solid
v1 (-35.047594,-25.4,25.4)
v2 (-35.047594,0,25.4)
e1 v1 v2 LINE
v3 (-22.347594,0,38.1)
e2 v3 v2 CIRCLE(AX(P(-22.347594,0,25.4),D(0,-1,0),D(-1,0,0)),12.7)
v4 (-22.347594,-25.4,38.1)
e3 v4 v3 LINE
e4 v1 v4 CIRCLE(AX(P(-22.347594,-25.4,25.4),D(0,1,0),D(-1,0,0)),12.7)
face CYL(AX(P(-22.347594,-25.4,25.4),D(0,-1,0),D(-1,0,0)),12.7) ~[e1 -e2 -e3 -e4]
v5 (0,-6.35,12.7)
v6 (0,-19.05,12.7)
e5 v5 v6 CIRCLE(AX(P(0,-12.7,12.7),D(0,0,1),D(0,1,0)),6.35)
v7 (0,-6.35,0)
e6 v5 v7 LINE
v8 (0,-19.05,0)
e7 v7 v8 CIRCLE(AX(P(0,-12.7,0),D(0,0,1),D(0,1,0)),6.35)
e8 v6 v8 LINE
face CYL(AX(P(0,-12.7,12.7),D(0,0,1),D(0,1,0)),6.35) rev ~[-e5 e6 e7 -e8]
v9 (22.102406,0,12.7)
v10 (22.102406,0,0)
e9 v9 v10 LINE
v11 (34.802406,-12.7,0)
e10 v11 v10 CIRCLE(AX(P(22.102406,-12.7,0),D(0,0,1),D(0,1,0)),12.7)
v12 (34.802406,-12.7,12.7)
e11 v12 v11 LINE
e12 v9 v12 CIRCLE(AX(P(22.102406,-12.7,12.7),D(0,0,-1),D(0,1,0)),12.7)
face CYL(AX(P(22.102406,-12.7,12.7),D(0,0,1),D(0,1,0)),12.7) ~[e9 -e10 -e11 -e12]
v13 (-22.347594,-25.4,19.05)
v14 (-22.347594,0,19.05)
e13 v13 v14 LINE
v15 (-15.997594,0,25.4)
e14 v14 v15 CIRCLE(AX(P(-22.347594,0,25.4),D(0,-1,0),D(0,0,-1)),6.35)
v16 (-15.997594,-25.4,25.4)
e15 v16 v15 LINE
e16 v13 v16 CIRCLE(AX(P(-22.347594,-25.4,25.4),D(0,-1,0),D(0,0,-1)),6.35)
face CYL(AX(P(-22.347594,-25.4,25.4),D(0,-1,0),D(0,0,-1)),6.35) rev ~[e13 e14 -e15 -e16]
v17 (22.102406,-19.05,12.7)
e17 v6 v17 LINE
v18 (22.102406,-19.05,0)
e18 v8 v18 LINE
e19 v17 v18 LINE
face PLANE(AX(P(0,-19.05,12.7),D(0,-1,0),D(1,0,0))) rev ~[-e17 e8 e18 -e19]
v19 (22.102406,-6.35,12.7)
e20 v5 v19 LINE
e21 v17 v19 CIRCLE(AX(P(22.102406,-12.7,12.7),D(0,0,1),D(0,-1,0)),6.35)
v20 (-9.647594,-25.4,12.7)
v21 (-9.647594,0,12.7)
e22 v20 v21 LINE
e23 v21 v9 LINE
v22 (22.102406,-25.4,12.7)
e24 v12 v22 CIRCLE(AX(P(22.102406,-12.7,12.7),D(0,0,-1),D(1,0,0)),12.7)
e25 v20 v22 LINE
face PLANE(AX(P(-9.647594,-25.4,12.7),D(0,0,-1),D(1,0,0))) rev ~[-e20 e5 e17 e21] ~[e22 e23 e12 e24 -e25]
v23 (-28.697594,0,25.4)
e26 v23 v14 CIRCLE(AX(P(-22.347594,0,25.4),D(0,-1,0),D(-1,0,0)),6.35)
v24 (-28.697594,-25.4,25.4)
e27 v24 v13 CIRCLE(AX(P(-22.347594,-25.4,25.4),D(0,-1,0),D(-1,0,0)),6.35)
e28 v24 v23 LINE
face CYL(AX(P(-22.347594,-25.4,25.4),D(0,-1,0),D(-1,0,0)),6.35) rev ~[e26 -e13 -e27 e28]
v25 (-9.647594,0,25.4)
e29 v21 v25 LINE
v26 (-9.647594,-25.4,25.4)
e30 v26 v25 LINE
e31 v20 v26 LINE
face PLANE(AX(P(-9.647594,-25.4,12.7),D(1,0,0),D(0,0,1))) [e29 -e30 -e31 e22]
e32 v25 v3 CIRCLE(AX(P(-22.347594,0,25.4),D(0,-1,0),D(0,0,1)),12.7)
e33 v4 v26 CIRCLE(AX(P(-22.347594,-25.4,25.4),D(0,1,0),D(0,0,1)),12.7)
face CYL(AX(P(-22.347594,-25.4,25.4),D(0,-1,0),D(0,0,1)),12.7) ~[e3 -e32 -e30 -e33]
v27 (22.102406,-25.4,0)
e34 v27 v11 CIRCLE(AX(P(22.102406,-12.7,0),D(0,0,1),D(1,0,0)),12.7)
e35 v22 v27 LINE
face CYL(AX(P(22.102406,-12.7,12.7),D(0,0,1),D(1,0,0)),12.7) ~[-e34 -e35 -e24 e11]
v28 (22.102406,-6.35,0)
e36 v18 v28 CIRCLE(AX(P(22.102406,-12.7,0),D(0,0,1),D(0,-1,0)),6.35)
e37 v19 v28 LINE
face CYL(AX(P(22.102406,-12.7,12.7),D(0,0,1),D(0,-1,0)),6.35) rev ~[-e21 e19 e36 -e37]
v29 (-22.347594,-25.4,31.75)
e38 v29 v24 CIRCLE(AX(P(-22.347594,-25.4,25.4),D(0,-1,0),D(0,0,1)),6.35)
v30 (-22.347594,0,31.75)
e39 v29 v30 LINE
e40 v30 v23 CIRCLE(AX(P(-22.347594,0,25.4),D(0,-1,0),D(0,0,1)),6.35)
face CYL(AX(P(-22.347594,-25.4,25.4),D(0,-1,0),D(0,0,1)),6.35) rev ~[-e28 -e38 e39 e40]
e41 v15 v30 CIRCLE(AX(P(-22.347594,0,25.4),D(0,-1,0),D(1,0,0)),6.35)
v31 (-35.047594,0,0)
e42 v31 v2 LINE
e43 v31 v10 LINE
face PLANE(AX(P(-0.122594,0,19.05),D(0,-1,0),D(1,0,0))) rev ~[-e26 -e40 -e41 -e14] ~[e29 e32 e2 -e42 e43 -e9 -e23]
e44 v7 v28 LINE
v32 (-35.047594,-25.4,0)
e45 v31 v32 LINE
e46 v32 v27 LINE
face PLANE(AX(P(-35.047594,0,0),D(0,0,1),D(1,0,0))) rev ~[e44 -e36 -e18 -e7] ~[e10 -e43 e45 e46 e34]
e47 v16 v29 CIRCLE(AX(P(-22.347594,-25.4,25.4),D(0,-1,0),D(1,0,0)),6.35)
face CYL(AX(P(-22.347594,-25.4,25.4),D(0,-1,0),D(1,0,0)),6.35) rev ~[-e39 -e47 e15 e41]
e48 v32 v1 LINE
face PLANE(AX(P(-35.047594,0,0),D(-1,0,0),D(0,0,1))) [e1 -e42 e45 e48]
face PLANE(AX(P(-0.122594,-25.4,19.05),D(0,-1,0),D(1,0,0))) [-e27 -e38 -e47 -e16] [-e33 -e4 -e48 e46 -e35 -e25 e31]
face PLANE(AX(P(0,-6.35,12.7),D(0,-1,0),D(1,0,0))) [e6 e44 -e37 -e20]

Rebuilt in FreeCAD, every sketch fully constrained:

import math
import FreeCAD as App
import Part
import Sketcher
Q = App.Units.Quantity

doc = App.newDocument("Part")
body = doc.addObject("PartDesign::Body", "Body")

sketch1 = body.newObject("Sketcher::SketchObject", "Sketch")
sketch1.AttachmentSupport = (doc.getObject("XZ_Plane"), [""])
sketch1.MapMode = "FlatFace"
sketch1.addGeometry([
    Part.LineSegment(App.Vector(-35, 38, 0), App.Vector(-35, 0, 0)),
    Part.LineSegment(App.Vector(-35, 0, 0), App.Vector(35, 0, 0)),
    Part.LineSegment(App.Vector(35, 0, 0), App.Vector(35, 38, 0)),
    Part.LineSegment(App.Vector(35, 38, 0), App.Vector(-35, 38, 0)),
], False)
sketch1.addConstraint([
    Sketcher.Constraint("Coincident", 0, 2, 1, 1),
    Sketcher.Constraint("Coincident", 1, 2, 2, 1),
    Sketcher.Constraint("Coincident", 2, 2, 3, 1),
    Sketcher.Constraint("Coincident", 3, 2, 0, 1),
    Sketcher.Constraint("Vertical", 0),
    Sketcher.Constraint("Horizontal", 1),
    Sketcher.Constraint("Vertical", 2),
    Sketcher.Constraint("Horizontal", 3),
    Sketcher.Constraint("PointOnObject", 0, 2, -1),
    Sketcher.Constraint("DistanceY", 0, 2, 0, 1, Q("1.5 in")),
    Sketcher.Constraint("DistanceX", 1, 1, 1, 2, Q("2.75 in")),
    Sketcher.Constraint("DistanceX", 0, 2, -1, 1, 35.047594),
])
pad1 = body.newObject("PartDesign::Pad", "Pad")
pad1.Profile = sketch1
pad1.Length = Q("1 in")

sketch2 = body.newObject("Sketcher::SketchObject", "Sketch001")
sketch2.AttachmentSupport = (doc.getObject("XZ_Plane"), [""])
sketch2.MapMode = "FlatFace"
sketch2.AttachmentOffset = App.Placement(App.Vector(0, 0, 1 * 25.4), App.Rotation())
sketch2.addGeometry([
    Part.LineSegment(App.Vector(-10, 38, 0), App.Vector(-10, 13, 0)),
    Part.LineSegment(App.Vector(-10, 13, 0), App.Vector(35, 13, 0)),
    Part.LineSegment(App.Vector(35, 13, 0), App.Vector(35, 38, 0)),
    Part.LineSegment(App.Vector(35, 38, 0), App.Vector(-10, 38, 0)),
], False)
sketch2.addConstraint([
    Sketcher.Constraint("Coincident", 0, 2, 1, 1),
    Sketcher.Constraint("Coincident", 1, 2, 2, 1),
    Sketcher.Constraint("Coincident", 2, 2, 3, 1),
    Sketcher.Constraint("Coincident", 3, 2, 0, 1),
    Sketcher.Constraint("Vertical", 0),
    Sketcher.Constraint("Horizontal", 1),
    Sketcher.Constraint("Vertical", 2),
    Sketcher.Constraint("Horizontal", 3),
    Sketcher.Constraint("DistanceY", 0, 2, 0, 1, Q("1 in")),
    Sketcher.Constraint("DistanceX", 1, 1, 1, 2, Q("1.75 in")),
    Sketcher.Constraint("DistanceY", -1, 1, 0, 2, Q("0.5 in")),
    Sketcher.Constraint("DistanceX", 0, 2, -1, 1, 9.647594),
])
pocket1 = body.newObject("PartDesign::Pocket", "Pocket")
pocket1.Profile = sketch2
pocket1.Type = "ThroughAll"

sketch3 = body.newObject("Sketcher::SketchObject", "Sketch002")
sketch3.AttachmentSupport = (doc.getObject("XZ_Plane"), [""])
sketch3.MapMode = "FlatFace"
sketch3.AttachmentOffset = App.Placement(App.Vector(0, 0, 1 * 25.4), App.Rotation())
sketch3.addGeometry([
    Part.LineSegment(App.Vector(-10, 38, 0), App.Vector(-22, 38, 0)),
    Part.ArcOfCircle(Part.Circle(App.Vector(-22, 25, 0), App.Vector(0, 0, 1), 13), math.radians(0), math.radians(90)),
    Part.LineSegment(App.Vector(-10, 25, 0), App.Vector(-10, 38, 0)),
    Part.LineSegment(App.Vector(-22, 38, 0), App.Vector(-35, 38, 0)),
    Part.LineSegment(App.Vector(-35, 38, 0), App.Vector(-35, 25, 0)),
    Part.ArcOfCircle(Part.Circle(App.Vector(-22, 25, 0), App.Vector(0, 0, 1), 13), math.radians(90), math.radians(180)),
], False)
sketch3.addConstraint([
    Sketcher.Constraint("Tangent", 0, 2, 1, 2),
    Sketcher.Constraint("Tangent", 1, 1, 2, 1),
    Sketcher.Constraint("Coincident", 2, 2, 0, 1),
    Sketcher.Constraint("Coincident", 3, 2, 4, 1),
    Sketcher.Constraint("Tangent", 4, 2, 5, 2),
    Sketcher.Constraint("Tangent", 5, 1, 3, 1),
    Sketcher.Constraint("Horizontal", 0),
    Sketcher.Constraint("Vertical", 2),
    Sketcher.Constraint("Horizontal", 3),
    Sketcher.Constraint("Vertical", 4),
    Sketcher.Constraint("Coincident", 5, 3, 1, 3),
    Sketcher.Constraint("Equal", 1, 5),
    Sketcher.Constraint("Radius", 1, Q("0.5 in")),
    Sketcher.Constraint("DistanceY", -1, 1, 1, 3, Q("1 in")),
    Sketcher.Constraint("DistanceX", 1, 3, -1, 1, 22.347594),
])
pocket2 = body.newObject("PartDesign::Pocket", "Pocket001")
pocket2.Profile = sketch3
pocket2.Type = "ThroughAll"

sketch4 = body.newObject("Sketcher::SketchObject", "Sketch003")
sketch4.AttachmentSupport = (doc.getObject("XZ_Plane"), [""])
sketch4.MapMode = "FlatFace"
sketch4.AttachmentOffset = App.Placement(App.Vector(0, 0, 1 * 25.4), App.Rotation())
sketch4.addGeometry([
    Part.ArcOfCircle(Part.Circle(App.Vector(-22, 25, 0), App.Vector(0, 0, 1), 6), math.radians(90), math.radians(180)),
    Part.ArcOfCircle(Part.Circle(App.Vector(-22, 25, 0), App.Vector(0, 0, 1), 6), math.radians(180), math.radians(270)),
    Part.ArcOfCircle(Part.Circle(App.Vector(-22, 25, 0), App.Vector(0, 0, 1), 6), math.radians(-90), math.radians(0)),
    Part.ArcOfCircle(Part.Circle(App.Vector(-22, 25, 0), App.Vector(0, 0, 1), 6), math.radians(0), math.radians(90)),
], False)
sketch4.addConstraint([
    Sketcher.Constraint("Tangent", 0, 2, 1, 1),
    Sketcher.Constraint("Tangent", 1, 2, 2, 1),
    Sketcher.Constraint("Tangent", 2, 2, 3, 1),
    Sketcher.Constraint("Tangent", 3, 2, 0, 1),
    Sketcher.Constraint("Equal", 0, 1),
    Sketcher.Constraint("Horizontal", 3, 3, 0, 2),
    Sketcher.Constraint("Horizontal", 0, 2, 2, 2),
    Sketcher.Constraint("Vertical", 3, 3, 1, 2),
    Sketcher.Constraint("Vertical", 1, 2, 3, 2),
    Sketcher.Constraint("Radius", 0, Q("0.25 in")),
    Sketcher.Constraint("DistanceY", -1, 1, 0, 3, Q("1 in")),
    Sketcher.Constraint("DistanceX", 0, 3, -1, 1, 22.347594),
])
pocket3 = body.newObject("PartDesign::Pocket", "Pocket002")
pocket3.Profile = sketch4
pocket3.Type = "ThroughAll"

sketch5 = body.newObject("Sketcher::SketchObject", "Sketch004")
sketch5.AttachmentSupport = (doc.getObject("XY_Plane"), [""])
sketch5.MapMode = "FlatFace"
sketch5.AttachmentOffset = App.Placement(App.Vector(0, 0, 0.5 * 25.4), App.Rotation())
sketch5.addGeometry([
    Part.ArcOfCircle(Part.Circle(App.Vector(22, -13, 0), App.Vector(0, 0, 1), 13), math.radians(0), math.radians(90)),
    Part.LineSegment(App.Vector(35, -13, 0), App.Vector(35, 0, 0)),
    Part.LineSegment(App.Vector(35, 0, 0), App.Vector(22, 0, 0)),
    Part.ArcOfCircle(Part.Circle(App.Vector(22, -13, 0), App.Vector(0, 0, 1), 13), math.radians(-90), math.radians(0)),
    Part.LineSegment(App.Vector(22, -25, 0), App.Vector(35, -25, 0)),
    Part.LineSegment(App.Vector(35, -25, 0), App.Vector(35, -13, 0)),
], False)
sketch5.addConstraint([
    Sketcher.Constraint("Tangent", 0, 1, 1, 1),
    Sketcher.Constraint("Coincident", 1, 2, 2, 1),
    Sketcher.Constraint("Tangent", 2, 2, 0, 2),
    Sketcher.Constraint("Tangent", 3, 1, 4, 1),
    Sketcher.Constraint("Coincident", 4, 2, 5, 1),
    Sketcher.Constraint("Tangent", 5, 2, 3, 2),
    Sketcher.Constraint("Vertical", 1),
    Sketcher.Constraint("Horizontal", 2),
    Sketcher.Constraint("Horizontal", 4),
    Sketcher.Constraint("Vertical", 5),
    Sketcher.Constraint("Coincident", 3, 3, 0, 3),
    Sketcher.Constraint("Equal", 0, 3),
    Sketcher.Constraint("PointOnObject", 1, 2, -1),
    Sketcher.Constraint("Radius", 0, Q("0.5 in")),
    Sketcher.Constraint("DistanceX", -1, 1, 0, 3, 22.102406),
])
pocket4 = body.newObject("PartDesign::Pocket", "Pocket003")
pocket4.Profile = sketch5
pocket4.Type = "ThroughAll"

sketch6 = body.newObject("Sketcher::SketchObject", "Sketch005")
sketch6.AttachmentSupport = (doc.getObject("XY_Plane"), [""])
sketch6.MapMode = "FlatFace"
sketch6.AttachmentOffset = App.Placement(App.Vector(0, 0, 0.5 * 25.4), App.Rotation())
sketch6.addGeometry([
    Part.LineSegment(App.Vector(0, -6, 0), App.Vector(0, -19, 0)),
    Part.LineSegment(App.Vector(0, -19, 0), App.Vector(22, -19, 0)),
    Part.LineSegment(App.Vector(22, -19, 0), App.Vector(22, -6, 0)),
    Part.LineSegment(App.Vector(22, -6, 0), App.Vector(0, -6, 0)),
], False)
sketch6.addConstraint([
    Sketcher.Constraint("Coincident", 0, 2, 1, 1),
    Sketcher.Constraint("Coincident", 1, 2, 2, 1),
    Sketcher.Constraint("Coincident", 2, 2, 3, 1),
    Sketcher.Constraint("Coincident", 3, 2, 0, 1),
    Sketcher.Constraint("Vertical", 0),
    Sketcher.Constraint("Horizontal", 1),
    Sketcher.Constraint("Vertical", 2),
    Sketcher.Constraint("Horizontal", 3),
    Sketcher.Constraint("PointOnObject", 0, 2, -2),
    Sketcher.Constraint("DistanceY", 0, 2, 0, 1, Q("0.5 in")),
    Sketcher.Constraint("DistanceY", 0, 2, -1, 1, Q("0.75 in")),
    Sketcher.Constraint("DistanceX", 1, 1, 1, 2, 22.102406),
])
pocket5 = body.newObject("PartDesign::Pocket", "Pocket004")
pocket5.Profile = sketch6
pocket5.Length = Q("1 in")

sketch7 = body.newObject("Sketcher::SketchObject", "Sketch006")
sketch7.AttachmentSupport = (doc.getObject("XY_Plane"), [""])
sketch7.MapMode = "FlatFace"
sketch7.AttachmentOffset = App.Placement(App.Vector(0, 0, 0.5 * 25.4), App.Rotation())
sketch7.addGeometry([
    Part.ArcOfCircle(Part.Circle(App.Vector(0, -13, 0), App.Vector(0, 0, 1), 6), math.radians(90), math.radians(270)),
    Part.LineSegment(App.Vector(0, -19, 0), App.Vector(0, -6, 0)),
    Part.LineSegment(App.Vector(22, -6, 0), App.Vector(22, -19, 0)),
    Part.ArcOfCircle(Part.Circle(App.Vector(22, -13, 0), App.Vector(0, 0, 1), 6), math.radians(-90), math.radians(90)),
], False)
sketch7.addConstraint([
    Sketcher.Constraint("Coincident", 0, 1, 1, 2),
    Sketcher.Constraint("Coincident", 1, 1, 0, 2),
    Sketcher.Constraint("Coincident", 2, 1, 3, 2),
    Sketcher.Constraint("Coincident", 3, 1, 2, 2),
    Sketcher.Constraint("Vertical", 1),
    Sketcher.Constraint("Vertical", 2),
    Sketcher.Constraint("Equal", 0, 3),
    Sketcher.Constraint("PointOnObject", 0, 3, -2),
    Sketcher.Constraint("PointOnObject", 0, 1, -2),
    Sketcher.Constraint("Horizontal", 0, 3, 3, 3),
    Sketcher.Constraint("Vertical", 3, 3, 2, 1),
    Sketcher.Constraint("Radius", 0, Q("0.25 in")),
    Sketcher.Constraint("DistanceY", 0, 3, -1, 1, Q("0.5 in")),
    Sketcher.Constraint("DistanceX", -1, 1, 3, 3, 22.102406),
])
pocket6 = body.newObject("PartDesign::Pocket", "Pocket005")
pocket6.Profile = sketch7
pocket6.Type = "ThroughAll"

doc.recompute()
